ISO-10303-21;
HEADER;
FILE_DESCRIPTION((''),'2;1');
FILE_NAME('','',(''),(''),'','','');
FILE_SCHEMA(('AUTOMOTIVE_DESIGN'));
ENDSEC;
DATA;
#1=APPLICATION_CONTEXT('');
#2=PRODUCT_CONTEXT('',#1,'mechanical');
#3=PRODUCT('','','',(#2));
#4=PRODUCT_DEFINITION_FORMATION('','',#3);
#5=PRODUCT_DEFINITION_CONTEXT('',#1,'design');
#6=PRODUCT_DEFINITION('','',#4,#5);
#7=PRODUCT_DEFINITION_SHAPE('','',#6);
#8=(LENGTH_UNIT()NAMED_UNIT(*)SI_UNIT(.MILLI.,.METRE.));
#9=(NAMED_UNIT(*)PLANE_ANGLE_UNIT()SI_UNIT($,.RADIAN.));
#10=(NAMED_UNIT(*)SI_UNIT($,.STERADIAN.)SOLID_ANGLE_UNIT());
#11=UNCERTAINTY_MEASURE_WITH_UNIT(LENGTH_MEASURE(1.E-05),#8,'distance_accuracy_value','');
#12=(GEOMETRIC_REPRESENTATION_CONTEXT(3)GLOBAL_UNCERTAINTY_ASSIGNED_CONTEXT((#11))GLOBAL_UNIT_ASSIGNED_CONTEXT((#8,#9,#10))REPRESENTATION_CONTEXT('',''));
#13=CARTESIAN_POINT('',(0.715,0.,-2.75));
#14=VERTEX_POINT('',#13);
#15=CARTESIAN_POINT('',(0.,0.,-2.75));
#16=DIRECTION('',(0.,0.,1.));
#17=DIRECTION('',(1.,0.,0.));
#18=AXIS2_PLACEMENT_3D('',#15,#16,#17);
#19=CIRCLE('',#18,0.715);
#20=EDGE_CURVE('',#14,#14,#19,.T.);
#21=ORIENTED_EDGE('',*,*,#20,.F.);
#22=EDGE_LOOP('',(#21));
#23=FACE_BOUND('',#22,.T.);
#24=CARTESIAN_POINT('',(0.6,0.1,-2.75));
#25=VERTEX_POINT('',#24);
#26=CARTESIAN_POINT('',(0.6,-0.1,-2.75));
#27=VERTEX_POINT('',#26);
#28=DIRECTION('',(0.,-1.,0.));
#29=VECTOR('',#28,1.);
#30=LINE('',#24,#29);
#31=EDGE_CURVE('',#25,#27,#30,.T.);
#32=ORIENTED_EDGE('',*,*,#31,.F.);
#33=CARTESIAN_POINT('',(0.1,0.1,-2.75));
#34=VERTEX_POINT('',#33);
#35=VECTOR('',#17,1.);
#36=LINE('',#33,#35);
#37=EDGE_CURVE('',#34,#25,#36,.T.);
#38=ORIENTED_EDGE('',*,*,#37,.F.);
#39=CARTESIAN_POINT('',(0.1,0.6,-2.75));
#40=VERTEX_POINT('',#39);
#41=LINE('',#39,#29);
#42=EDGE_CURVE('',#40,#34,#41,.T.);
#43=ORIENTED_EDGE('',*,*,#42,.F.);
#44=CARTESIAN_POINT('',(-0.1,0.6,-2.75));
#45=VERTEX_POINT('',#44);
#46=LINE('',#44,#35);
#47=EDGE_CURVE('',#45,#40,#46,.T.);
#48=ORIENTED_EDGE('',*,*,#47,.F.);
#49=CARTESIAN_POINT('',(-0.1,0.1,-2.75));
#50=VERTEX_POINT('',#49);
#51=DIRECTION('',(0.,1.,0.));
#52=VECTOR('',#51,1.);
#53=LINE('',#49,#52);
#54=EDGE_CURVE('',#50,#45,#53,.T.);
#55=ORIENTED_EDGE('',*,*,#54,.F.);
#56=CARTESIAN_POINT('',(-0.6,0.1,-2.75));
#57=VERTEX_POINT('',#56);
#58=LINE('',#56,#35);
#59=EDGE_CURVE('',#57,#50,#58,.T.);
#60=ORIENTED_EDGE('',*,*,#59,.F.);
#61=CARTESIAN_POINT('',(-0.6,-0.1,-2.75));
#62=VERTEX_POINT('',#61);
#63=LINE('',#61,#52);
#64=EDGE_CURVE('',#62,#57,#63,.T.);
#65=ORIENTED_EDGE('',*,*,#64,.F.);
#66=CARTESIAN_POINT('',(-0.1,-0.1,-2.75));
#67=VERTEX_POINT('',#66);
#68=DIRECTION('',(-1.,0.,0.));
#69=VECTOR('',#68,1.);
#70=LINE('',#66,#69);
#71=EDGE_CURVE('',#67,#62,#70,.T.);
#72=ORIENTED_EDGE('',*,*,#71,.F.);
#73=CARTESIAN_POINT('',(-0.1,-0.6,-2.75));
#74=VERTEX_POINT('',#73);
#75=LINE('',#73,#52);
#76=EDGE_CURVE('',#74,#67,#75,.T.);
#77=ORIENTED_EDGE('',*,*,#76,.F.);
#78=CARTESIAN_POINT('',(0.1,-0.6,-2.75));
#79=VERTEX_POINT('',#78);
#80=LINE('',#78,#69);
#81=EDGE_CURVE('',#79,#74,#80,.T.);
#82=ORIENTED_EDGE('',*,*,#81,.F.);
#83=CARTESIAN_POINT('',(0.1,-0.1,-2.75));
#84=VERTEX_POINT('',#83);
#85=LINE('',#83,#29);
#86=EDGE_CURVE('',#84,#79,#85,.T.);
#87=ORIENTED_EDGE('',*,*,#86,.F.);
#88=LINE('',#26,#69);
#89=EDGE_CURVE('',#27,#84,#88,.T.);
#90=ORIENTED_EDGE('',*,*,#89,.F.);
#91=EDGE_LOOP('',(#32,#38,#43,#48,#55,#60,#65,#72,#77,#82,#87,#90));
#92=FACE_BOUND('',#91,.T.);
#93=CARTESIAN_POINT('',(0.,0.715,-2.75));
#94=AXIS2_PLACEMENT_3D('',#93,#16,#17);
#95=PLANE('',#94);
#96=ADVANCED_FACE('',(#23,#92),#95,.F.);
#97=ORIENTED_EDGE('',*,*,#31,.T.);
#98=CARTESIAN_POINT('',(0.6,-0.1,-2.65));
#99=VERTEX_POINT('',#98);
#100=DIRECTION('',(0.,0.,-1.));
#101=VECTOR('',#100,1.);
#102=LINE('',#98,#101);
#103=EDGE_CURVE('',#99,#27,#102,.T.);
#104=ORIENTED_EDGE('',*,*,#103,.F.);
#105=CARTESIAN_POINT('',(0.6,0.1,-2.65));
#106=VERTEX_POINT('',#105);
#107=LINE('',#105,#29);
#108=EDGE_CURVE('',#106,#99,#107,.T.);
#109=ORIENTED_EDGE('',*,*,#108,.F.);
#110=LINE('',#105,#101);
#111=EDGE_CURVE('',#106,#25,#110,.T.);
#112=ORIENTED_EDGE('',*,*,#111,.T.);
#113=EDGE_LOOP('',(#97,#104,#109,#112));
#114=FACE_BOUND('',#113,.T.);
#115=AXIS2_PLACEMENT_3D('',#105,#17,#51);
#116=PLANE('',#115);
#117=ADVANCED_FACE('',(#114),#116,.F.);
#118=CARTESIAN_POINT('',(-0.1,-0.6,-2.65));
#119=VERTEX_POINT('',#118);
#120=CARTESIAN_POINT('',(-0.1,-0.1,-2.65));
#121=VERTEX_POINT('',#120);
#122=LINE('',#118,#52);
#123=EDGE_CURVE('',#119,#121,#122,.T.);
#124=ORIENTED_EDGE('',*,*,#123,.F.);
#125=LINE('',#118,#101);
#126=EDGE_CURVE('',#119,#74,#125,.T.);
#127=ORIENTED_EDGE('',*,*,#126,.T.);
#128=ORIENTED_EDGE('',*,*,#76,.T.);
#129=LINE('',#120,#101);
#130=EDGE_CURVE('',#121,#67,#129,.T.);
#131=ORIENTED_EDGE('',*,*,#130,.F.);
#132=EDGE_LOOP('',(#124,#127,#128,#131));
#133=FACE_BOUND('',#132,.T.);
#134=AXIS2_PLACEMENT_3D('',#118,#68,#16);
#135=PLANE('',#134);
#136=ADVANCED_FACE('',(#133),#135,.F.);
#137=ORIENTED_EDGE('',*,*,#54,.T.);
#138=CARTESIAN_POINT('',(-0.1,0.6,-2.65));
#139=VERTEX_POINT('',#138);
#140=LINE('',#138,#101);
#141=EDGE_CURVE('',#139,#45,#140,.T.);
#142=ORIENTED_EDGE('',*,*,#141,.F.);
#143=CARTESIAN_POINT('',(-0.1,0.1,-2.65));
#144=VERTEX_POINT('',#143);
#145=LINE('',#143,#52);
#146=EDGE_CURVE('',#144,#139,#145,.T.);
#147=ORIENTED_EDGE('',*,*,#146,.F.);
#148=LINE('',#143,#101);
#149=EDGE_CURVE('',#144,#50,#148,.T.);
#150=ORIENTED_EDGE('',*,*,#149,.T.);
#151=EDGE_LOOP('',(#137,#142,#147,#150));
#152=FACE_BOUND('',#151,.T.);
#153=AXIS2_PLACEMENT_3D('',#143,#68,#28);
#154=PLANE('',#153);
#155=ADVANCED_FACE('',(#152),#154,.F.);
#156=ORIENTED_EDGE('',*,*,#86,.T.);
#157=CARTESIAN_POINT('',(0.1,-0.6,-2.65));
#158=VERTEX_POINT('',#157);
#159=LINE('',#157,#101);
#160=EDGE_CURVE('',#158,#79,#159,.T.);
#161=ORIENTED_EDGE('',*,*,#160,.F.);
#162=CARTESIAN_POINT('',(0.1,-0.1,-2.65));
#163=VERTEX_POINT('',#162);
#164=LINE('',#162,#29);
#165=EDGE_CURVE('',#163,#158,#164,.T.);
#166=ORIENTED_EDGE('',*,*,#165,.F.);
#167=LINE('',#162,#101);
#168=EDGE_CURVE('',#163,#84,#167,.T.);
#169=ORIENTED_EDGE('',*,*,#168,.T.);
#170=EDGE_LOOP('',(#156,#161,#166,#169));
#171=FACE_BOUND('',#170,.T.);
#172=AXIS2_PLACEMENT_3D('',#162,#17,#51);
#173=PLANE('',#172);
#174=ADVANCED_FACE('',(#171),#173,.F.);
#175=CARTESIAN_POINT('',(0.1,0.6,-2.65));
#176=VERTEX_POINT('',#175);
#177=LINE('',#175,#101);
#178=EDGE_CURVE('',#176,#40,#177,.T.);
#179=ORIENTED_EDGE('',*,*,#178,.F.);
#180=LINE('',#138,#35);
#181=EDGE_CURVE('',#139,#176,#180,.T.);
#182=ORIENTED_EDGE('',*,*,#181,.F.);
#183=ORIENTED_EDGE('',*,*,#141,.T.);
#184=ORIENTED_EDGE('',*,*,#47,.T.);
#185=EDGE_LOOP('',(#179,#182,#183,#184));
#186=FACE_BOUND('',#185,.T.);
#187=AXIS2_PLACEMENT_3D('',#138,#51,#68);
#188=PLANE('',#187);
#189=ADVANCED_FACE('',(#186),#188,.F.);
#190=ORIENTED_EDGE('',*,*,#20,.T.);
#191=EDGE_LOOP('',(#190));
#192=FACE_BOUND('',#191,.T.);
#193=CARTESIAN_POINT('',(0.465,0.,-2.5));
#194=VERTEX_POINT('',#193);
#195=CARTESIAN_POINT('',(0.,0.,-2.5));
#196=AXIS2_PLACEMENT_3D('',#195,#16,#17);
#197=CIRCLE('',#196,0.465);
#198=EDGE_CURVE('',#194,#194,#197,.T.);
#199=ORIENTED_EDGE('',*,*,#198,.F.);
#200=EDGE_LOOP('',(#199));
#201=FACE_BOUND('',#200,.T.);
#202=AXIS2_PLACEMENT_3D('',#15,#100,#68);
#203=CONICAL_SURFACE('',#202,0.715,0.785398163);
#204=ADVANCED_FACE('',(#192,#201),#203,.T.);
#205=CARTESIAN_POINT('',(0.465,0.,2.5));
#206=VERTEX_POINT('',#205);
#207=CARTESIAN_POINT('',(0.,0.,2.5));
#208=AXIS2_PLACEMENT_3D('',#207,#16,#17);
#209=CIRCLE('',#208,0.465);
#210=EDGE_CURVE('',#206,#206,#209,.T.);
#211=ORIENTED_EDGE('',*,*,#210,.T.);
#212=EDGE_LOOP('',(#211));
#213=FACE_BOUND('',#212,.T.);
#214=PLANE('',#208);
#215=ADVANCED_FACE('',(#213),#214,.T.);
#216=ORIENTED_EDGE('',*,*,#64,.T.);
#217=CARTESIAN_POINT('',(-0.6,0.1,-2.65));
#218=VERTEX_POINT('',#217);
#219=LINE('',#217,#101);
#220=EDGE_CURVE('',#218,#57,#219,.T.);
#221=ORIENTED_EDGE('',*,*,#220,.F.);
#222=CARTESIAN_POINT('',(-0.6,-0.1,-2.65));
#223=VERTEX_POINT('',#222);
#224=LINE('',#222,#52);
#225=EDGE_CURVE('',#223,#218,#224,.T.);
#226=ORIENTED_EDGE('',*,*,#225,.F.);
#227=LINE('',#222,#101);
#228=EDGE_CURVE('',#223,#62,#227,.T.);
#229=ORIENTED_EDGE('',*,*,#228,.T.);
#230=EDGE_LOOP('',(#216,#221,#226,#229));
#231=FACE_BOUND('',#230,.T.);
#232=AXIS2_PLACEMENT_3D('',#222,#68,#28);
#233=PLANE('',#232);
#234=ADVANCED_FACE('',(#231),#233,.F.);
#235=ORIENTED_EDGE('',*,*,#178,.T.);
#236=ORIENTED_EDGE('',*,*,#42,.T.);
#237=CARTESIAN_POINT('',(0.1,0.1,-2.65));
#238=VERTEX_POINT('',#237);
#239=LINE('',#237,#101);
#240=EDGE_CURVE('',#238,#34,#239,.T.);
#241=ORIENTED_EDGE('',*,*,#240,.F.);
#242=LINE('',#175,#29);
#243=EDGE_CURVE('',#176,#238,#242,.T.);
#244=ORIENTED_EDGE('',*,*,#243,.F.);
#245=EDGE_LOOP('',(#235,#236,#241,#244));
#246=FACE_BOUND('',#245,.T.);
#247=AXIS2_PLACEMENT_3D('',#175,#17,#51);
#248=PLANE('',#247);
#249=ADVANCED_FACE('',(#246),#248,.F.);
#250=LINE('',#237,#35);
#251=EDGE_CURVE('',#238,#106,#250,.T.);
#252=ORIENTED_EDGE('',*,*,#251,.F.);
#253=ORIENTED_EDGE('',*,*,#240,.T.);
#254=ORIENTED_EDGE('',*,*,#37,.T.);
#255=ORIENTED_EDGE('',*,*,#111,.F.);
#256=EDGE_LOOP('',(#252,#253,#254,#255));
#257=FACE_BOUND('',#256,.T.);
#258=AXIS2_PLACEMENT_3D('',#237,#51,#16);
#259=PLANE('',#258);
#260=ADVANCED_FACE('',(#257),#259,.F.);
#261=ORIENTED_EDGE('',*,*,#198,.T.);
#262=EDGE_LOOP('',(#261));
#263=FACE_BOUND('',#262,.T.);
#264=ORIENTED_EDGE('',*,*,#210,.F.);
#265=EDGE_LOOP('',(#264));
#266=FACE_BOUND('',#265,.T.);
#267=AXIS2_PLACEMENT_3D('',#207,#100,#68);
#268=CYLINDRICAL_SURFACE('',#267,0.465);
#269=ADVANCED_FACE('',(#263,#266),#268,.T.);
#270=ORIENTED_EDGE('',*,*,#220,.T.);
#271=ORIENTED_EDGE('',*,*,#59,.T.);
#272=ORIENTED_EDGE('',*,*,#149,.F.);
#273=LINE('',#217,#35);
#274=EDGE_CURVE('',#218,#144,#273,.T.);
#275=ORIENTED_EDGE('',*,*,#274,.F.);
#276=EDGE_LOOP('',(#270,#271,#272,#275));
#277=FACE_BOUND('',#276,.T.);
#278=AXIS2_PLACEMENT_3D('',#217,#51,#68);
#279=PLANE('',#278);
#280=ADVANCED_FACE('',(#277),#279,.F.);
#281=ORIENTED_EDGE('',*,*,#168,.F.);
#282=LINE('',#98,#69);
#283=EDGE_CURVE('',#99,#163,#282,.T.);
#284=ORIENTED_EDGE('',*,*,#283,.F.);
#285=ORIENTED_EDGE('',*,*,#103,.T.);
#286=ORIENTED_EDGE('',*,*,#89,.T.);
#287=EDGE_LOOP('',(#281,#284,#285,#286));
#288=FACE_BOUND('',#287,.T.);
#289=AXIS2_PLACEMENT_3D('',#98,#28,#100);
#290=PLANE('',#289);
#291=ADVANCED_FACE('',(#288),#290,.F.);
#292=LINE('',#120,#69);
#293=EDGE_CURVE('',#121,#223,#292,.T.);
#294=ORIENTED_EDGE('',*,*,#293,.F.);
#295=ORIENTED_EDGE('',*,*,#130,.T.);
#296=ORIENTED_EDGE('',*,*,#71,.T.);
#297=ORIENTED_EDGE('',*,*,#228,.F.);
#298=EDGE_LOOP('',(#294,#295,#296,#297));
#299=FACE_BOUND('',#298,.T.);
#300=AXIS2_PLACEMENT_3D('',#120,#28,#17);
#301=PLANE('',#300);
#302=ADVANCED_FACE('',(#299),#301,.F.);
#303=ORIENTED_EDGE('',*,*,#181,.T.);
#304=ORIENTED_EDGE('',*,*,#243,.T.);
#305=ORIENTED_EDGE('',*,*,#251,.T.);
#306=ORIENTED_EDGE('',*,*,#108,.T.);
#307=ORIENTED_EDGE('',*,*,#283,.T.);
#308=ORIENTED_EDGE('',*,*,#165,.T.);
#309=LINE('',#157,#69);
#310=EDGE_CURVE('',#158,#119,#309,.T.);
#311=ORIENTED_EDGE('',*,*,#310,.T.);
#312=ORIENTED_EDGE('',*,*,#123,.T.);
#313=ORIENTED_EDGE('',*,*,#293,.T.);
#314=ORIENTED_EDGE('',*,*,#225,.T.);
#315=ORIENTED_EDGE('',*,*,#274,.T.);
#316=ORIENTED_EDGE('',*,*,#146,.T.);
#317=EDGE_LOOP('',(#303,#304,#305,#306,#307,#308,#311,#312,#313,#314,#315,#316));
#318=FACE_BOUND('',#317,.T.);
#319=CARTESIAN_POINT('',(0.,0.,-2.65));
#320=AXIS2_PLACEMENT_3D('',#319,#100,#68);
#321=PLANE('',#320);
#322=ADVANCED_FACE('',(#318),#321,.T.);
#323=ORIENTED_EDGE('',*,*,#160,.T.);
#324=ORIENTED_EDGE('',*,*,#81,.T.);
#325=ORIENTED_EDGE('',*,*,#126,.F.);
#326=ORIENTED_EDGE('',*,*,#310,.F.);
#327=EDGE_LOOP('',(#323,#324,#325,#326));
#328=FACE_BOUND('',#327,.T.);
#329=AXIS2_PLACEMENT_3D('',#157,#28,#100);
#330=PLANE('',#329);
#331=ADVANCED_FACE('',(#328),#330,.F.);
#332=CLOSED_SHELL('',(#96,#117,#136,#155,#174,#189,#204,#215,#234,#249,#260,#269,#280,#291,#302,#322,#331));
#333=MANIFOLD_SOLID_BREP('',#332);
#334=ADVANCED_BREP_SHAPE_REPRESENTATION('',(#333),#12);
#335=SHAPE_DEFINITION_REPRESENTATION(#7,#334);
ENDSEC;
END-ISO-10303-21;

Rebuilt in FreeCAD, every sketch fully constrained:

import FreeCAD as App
import Part
import Sketcher
from FreeCAD import Vector
Q = App.Units.Quantity

doc = App.newDocument("Part")
body = doc.addObject("PartDesign::Body", "Body")

sketch1 = body.newObject("Sketcher::SketchObject", "Sketch")
sketch1.AttachmentSupport = (doc.getObject("XY_Plane"), [""])
sketch1.MapMode = "FlatFace"
sketch1.addGeometry(Part.Circle(Vector(0, 0, 0), Vector(0, 0, 1), 0.47), False)
sketch1.addConstraint(Sketcher.Constraint("Coincident", 0, 3, -1, 1))
sketch1.addConstraint(Sketcher.Constraint("Diameter", 0, Q("0.93 mm")))
pad1 = body.newObject("PartDesign::Pad", "Pad")
pad1.Profile = sketch1
pad1.Length = 5
pad1.Midplane = True

sketch2 = body.newObject("Sketcher::SketchObject", "Sketch001")
sketch2.AttachmentSupport = (doc.getObject("YZ_Plane"), [""])
sketch2.MapMode = "FlatFace"
sketch2.addGeometry(Part.LineSegment(Vector(0, -2.75, 0), Vector(0.71, -2.75, 0)), False)
sketch2.addGeometry(Part.LineSegment(Vector(0.71, -2.75, 0), Vector(0.47, -2.5, 0)), False)
sketch2.addGeometry(Part.LineSegment(Vector(0.47, -2.5, 0), Vector(0, -2.5, 0)), False)
sketch2.addGeometry(Part.LineSegment(Vector(0, -2.5, 0), Vector(0, -2.75, 0)), False)
sketch2.addConstraint(Sketcher.Constraint("Coincident", 0, 2, 1, 1))
sketch2.addConstraint(Sketcher.Constraint("Coincident", 1, 2, 2, 1))
sketch2.addConstraint(Sketcher.Constraint("Coincident", 2, 2, 3, 1))
sketch2.addConstraint(Sketcher.Constraint("Coincident", 3, 2, 0, 1))
sketch2.addConstraint(Sketcher.Constraint("Horizontal", 0))
sketch2.addConstraint(Sketcher.Constraint("Horizontal", 2))
sketch2.addConstraint(Sketcher.Constraint("Vertical", 3))
sketch2.addConstraint(Sketcher.Constraint("PointOnObject", 2, 2, -2))
sketch2.addConstraint(Sketcher.Constraint("Angle", 1, Q("135 deg")))
sketch2.addConstraint(Sketcher.Constraint("DistanceY", 3, 2, 3, 1, Q("0.25 mm")))
sketch2.addConstraint(Sketcher.Constraint("DistanceY", 1, 2, -1, 1, Q("2.5 mm")))
sketch2.addConstraint(Sketcher.Constraint("DistanceX", 0, 1, 0, 2, Q("0.715 mm")))
revolution = body.newObject("PartDesign::Revolution", "Revolution")
revolution.Profile = sketch2
revolution.ReferenceAxis = (sketch2, ["V_Axis"])
revolution.Angle = 360

sketch3 = body.newObject("Sketcher::SketchObject", "Sketch002")
sketch3.AttachmentSupport = (doc.getObject("XY_Plane"), [""])
sketch3.MapMode = "FlatFace"
sketch3.AttachmentOffset = App.Placement(Vector(0, 0, -2.75), App.Rotation())
sketch3.addGeometry(Part.LineSegment(Vector(-0.1, 0.6, 0), Vector(0.1, 0.6, 0)), False)
sketch3.addGeometry(Part.LineSegment(Vector(0.1, 0.6, 0), Vector(0.1, 0.1, 0)), False)
sketch3.addGeometry(Part.LineSegment(Vector(0.1, 0.1, 0), Vector(0.6, 0.1, 0)), False)
sketch3.addGeometry(Part.LineSegment(Vector(0.6, 0.1, 0), Vector(0.6, -0.1, 0)), False)
sketch3.addGeometry(Part.LineSegment(Vector(0.6, -0.1, 0), Vector(0.1, -0.1, 0)), False)
sketch3.addGeometry(Part.LineSegment(Vector(0.1, -0.1, 0), Vector(0.1, -0.6, 0)), False)
sketch3.addGeometry(Part.LineSegment(Vector(0.1, -0.6, 0), Vector(-0.1, -0.6, 0)), False)
sketch3.addGeometry(Part.LineSegment(Vector(-0.1, -0.6, 0), Vector(-0.1, -0.1, 0)), False)
sketch3.addGeometry(Part.LineSegment(Vector(-0.1, -0.1, 0), Vector(-0.6, -0.1, 0)), False)
sketch3.addGeometry(Part.LineSegment(Vector(-0.6, -0.1, 0), Vector(-0.6, 0.1, 0)), False)
sketch3.addGeometry(Part.LineSegment(Vector(-0.6, 0.1, 0), Vector(-0.1, 0.1, 0)), False)
sketch3.addGeometry(Part.LineSegment(Vector(-0.1, 0.1, 0), Vector(-0.1, 0.6, 0)), False)
sketch3.addConstraint(Sketcher.Constraint("Coincident", 0, 2, 1, 1))
sketch3.addConstraint(Sketcher.Constraint("Coincident", 1, 2, 2, 1))
sketch3.addConstraint(Sketcher.Constraint("Coincident", 2, 2, 3, 1))
sketch3.addConstraint(Sketcher.Constraint("Coincident", 3, 2, 4, 1))
sketch3.addConstraint(Sketcher.Constraint("Coincident", 4, 2, 5, 1))
sketch3.addConstraint(Sketcher.Constraint("Coincident", 5, 2, 6, 1))
sketch3.addConstraint(Sketcher.Constraint("Coincident", 6, 2, 7, 1))
sketch3.addConstraint(Sketcher.Constraint("Coincident", 7, 2, 8, 1))
sketch3.addConstraint(Sketcher.Constraint("Coincident", 8, 2, 9, 1))
sketch3.addConstraint(Sketcher.Constraint("Coincident", 9, 2, 10, 1))
sketch3.addConstraint(Sketcher.Constraint("Coincident", 10, 2, 11, 1))
sketch3.addConstraint(Sketcher.Constraint("Coincident", 11, 2, 0, 1))
sketch3.addConstraint(Sketcher.Constraint("Horizontal", 0))
sketch3.addConstraint(Sketcher.Constraint("Vertical", 1))
sketch3.addConstraint(Sketcher.Constraint("Horizontal", 2))
sketch3.addConstraint(Sketcher.Constraint("Vertical", 3))
sketch3.addConstraint(Sketcher.Constraint("Horizontal", 4))
sketch3.addConstraint(Sketcher.Constraint("Vertical", 5))
sketch3.addConstraint(Sketcher.Constraint("Horizontal", 6))
sketch3.addConstraint(Sketcher.Constraint("Vertical", 7))
sketch3.addConstraint(Sketcher.Constraint("Horizontal", 8))
sketch3.addConstraint(Sketcher.Constraint("Vertical", 9))
sketch3.addConstraint(Sketcher.Constraint("Horizontal", 10))
sketch3.addConstraint(Sketcher.Constraint("Vertical", 11))
sketch3.addConstraint(Sketcher.Constraint("Symmetric", 0, 2, 6, 2, -1, 1))
sketch3.addConstraint(Sketcher.Constraint("Symmetric", 2, 2, 8, 2, -1, 1))
sketch3.addConstraint(Sketcher.Constraint("Symmetric", 4, 2, 10, 2, -1, 1))
sketch3.addConstraint(Sketcher.Constraint("Symmetric", 4, 2, 7, 2, -2))
sketch3.addConstraint(Sketcher.Constraint("Equal", 10, 1))
sketch3.addConstraint(Sketcher.Constraint("Equal", 6, 3))
sketch3.addConstraint(Sketcher.Constraint("DistanceX", 0, 1, 0, 2, Q("0.2 mm")))
sketch3.addConstraint(Sketcher.Constraint("DistanceX", 2, 1, 2, 2, Q("0.5 mm")))
pocket1 = body.newObject("PartDesign::Pocket", "Pocket")
pocket1.Profile = sketch3
pocket1.Length = 0.1
pocket1.Reversed = True

doc.recompute()
